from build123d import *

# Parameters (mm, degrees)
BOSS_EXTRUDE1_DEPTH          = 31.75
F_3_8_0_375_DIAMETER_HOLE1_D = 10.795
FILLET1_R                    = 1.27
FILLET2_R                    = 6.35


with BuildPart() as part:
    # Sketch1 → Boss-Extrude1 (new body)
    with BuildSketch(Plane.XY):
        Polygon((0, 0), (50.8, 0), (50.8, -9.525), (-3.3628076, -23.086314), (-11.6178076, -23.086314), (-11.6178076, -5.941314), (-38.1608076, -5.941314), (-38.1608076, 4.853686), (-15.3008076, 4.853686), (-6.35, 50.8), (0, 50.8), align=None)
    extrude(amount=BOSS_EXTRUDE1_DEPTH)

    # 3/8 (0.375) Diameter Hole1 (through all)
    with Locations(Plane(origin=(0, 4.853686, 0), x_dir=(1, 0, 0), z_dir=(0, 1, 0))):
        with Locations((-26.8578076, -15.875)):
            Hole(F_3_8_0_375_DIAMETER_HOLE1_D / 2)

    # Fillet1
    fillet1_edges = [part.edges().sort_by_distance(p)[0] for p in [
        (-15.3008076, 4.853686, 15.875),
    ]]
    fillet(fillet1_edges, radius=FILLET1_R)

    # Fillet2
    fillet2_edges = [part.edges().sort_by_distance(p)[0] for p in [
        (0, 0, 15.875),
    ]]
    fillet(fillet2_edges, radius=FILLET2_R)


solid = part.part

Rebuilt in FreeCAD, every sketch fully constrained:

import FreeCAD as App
import Part
import Sketcher
Q = App.Units.Quantity


def edges_at(feature, points):
    """Names of the edges that pass closest to the given points."""
    edges = feature.Shape.Edges
    near = lambda p: min(range(len(edges)), key=lambda i: edges[i].distToShape(Part.Vertex(*p))[0])
    return sorted({f"Edge{near(p) + 1}" for p in points})


def add_polygon(sketch, points):
    """Adds a closed chain of lines whose ends are joined by coincident constraints."""
    first, n = sketch.GeometryCount, len(points)
    for a, b in zip(points, points[1:] + points[:1]):
        sketch.addGeometry(Part.LineSegment(App.Vector(*a, 0), App.Vector(*b, 0)), False)
    for i in range(n):
        sketch.addConstraint(Sketcher.Constraint("Coincident", first + i, 2, first + (i + 1) % n, 1))

doc = App.newDocument("Part")
body = doc.addObject("PartDesign::Body", "Body")

# Sketch on XY plane
sketch1 = body.newObject("Sketcher::SketchObject", "Sketch")
sketch1.AttachmentSupport = (doc.getObject("XY_Plane"), [""])
sketch1.MapMode = "FlatFace"
add_polygon(sketch1, [(50.8, 0), (0, 0), (0, 50.8), (-6.35, 50.8), (-15.300808, 4.853686), (-38.160808, 4.853686), (-38.160808, -5.941314), (-11.617808, -5.941314), (-11.617808, -23.086314), (-3.362808, -23.086314), (50.8, -9.525)])  # lines 0-10
sketch1.addConstraint([
    Sketcher.Constraint("Horizontal", 0),
    Sketcher.Constraint("Vertical", 1),
    Sketcher.Constraint("Horizontal", 2),
    Sketcher.Constraint("Horizontal", 4),
    Sketcher.Constraint("Vertical", 5),
    Sketcher.Constraint("Horizontal", 6),
    Sketcher.Constraint("Vertical", 7),
    Sketcher.Constraint("Horizontal", 8),
    Sketcher.Constraint("Vertical", 10),
    Sketcher.Constraint("Coincident", 0, 2, -1, 1),
    Sketcher.Constraint("Equal", 0, 1),
    Sketcher.Constraint("DistanceX", 0, 2, 0, 1, Q("2 in")),
    Sketcher.Constraint("DistanceX", 4, 2, 4, 1, Q("0.9 in")),
    Sketcher.Constraint("DistanceX", 2, 2, 2, 1, Q("0.25 in")),
    Sketcher.Constraint("DistanceY", 7, 2, 3, 2, Q("1.1 in")),
    Sketcher.Constraint("DistanceX", 6, 1, 6, 2, Q("1.045 in")),
    Sketcher.Constraint("DistanceX", 8, 1, 8, 2, Q("0.325 in")),
    Sketcher.Constraint("DistanceY", 5, 2, 5, 1, Q("0.425 in")),
    Sketcher.Constraint("DistanceY", 10, 1, 10, 2, Q("0.375 in")),
    Sketcher.Constraint("Distance", 3, 46.810049),
    Sketcher.Constraint("Distance", 9, 55.834747),
])
pad1 = body.newObject("PartDesign::Pad", "Pad")
pad1.Profile = sketch1
pad1.Length = Q("1.25 in")

# Sketch on XZ plane
sketch2 = body.newObject("Sketcher::SketchObject", "Sketch001")
sketch2.AttachmentSupport = (doc.getObject("XZ_Plane"), [""])
sketch2.MapMode = "FlatFace"
sketch2.AttachmentOffset = App.Placement(App.Vector(0, 0, -4.853686), App.Rotation())
sketch2.addGeometry(Part.Circle(App.Vector(-26.857808, 15.875, 0), App.Vector(0, 0, 1), 5.3975), False)
sketch2.addConstraint([
    Sketcher.Constraint("Diameter", 0, Q("0.425 in")),
    Sketcher.Constraint("DistanceY", -1, 1, 0, 3, Q("0.625 in")),
    Sketcher.Constraint("DistanceX", 0, 3, -1, 1, 26.857808),
])
doc.recompute()
hole = body.newObject("PartDesign::Hole", "Hole")
hole.Profile = sketch2
hole.ThreadType = "None"
hole.Diameter = Q("0.425 in")
hole.DepthType = "ThroughAll"
hole.Reversed = True
doc.recompute()

fillet = body.newObject("PartDesign::Fillet", "Fillet")
fillet.Base = (hole, edges_at(hole, [(-15.301, 4.854, 15.875)]))
fillet.Radius = Q("0.05 in")
doc.recompute()

fillet2 = body.newObject("PartDesign::Fillet", "Fillet001")
fillet2.Base = (fillet, edges_at(fillet, [(0, 0, 15.875)]))
fillet2.Radius = Q("0.25 in")

doc.recompute()
